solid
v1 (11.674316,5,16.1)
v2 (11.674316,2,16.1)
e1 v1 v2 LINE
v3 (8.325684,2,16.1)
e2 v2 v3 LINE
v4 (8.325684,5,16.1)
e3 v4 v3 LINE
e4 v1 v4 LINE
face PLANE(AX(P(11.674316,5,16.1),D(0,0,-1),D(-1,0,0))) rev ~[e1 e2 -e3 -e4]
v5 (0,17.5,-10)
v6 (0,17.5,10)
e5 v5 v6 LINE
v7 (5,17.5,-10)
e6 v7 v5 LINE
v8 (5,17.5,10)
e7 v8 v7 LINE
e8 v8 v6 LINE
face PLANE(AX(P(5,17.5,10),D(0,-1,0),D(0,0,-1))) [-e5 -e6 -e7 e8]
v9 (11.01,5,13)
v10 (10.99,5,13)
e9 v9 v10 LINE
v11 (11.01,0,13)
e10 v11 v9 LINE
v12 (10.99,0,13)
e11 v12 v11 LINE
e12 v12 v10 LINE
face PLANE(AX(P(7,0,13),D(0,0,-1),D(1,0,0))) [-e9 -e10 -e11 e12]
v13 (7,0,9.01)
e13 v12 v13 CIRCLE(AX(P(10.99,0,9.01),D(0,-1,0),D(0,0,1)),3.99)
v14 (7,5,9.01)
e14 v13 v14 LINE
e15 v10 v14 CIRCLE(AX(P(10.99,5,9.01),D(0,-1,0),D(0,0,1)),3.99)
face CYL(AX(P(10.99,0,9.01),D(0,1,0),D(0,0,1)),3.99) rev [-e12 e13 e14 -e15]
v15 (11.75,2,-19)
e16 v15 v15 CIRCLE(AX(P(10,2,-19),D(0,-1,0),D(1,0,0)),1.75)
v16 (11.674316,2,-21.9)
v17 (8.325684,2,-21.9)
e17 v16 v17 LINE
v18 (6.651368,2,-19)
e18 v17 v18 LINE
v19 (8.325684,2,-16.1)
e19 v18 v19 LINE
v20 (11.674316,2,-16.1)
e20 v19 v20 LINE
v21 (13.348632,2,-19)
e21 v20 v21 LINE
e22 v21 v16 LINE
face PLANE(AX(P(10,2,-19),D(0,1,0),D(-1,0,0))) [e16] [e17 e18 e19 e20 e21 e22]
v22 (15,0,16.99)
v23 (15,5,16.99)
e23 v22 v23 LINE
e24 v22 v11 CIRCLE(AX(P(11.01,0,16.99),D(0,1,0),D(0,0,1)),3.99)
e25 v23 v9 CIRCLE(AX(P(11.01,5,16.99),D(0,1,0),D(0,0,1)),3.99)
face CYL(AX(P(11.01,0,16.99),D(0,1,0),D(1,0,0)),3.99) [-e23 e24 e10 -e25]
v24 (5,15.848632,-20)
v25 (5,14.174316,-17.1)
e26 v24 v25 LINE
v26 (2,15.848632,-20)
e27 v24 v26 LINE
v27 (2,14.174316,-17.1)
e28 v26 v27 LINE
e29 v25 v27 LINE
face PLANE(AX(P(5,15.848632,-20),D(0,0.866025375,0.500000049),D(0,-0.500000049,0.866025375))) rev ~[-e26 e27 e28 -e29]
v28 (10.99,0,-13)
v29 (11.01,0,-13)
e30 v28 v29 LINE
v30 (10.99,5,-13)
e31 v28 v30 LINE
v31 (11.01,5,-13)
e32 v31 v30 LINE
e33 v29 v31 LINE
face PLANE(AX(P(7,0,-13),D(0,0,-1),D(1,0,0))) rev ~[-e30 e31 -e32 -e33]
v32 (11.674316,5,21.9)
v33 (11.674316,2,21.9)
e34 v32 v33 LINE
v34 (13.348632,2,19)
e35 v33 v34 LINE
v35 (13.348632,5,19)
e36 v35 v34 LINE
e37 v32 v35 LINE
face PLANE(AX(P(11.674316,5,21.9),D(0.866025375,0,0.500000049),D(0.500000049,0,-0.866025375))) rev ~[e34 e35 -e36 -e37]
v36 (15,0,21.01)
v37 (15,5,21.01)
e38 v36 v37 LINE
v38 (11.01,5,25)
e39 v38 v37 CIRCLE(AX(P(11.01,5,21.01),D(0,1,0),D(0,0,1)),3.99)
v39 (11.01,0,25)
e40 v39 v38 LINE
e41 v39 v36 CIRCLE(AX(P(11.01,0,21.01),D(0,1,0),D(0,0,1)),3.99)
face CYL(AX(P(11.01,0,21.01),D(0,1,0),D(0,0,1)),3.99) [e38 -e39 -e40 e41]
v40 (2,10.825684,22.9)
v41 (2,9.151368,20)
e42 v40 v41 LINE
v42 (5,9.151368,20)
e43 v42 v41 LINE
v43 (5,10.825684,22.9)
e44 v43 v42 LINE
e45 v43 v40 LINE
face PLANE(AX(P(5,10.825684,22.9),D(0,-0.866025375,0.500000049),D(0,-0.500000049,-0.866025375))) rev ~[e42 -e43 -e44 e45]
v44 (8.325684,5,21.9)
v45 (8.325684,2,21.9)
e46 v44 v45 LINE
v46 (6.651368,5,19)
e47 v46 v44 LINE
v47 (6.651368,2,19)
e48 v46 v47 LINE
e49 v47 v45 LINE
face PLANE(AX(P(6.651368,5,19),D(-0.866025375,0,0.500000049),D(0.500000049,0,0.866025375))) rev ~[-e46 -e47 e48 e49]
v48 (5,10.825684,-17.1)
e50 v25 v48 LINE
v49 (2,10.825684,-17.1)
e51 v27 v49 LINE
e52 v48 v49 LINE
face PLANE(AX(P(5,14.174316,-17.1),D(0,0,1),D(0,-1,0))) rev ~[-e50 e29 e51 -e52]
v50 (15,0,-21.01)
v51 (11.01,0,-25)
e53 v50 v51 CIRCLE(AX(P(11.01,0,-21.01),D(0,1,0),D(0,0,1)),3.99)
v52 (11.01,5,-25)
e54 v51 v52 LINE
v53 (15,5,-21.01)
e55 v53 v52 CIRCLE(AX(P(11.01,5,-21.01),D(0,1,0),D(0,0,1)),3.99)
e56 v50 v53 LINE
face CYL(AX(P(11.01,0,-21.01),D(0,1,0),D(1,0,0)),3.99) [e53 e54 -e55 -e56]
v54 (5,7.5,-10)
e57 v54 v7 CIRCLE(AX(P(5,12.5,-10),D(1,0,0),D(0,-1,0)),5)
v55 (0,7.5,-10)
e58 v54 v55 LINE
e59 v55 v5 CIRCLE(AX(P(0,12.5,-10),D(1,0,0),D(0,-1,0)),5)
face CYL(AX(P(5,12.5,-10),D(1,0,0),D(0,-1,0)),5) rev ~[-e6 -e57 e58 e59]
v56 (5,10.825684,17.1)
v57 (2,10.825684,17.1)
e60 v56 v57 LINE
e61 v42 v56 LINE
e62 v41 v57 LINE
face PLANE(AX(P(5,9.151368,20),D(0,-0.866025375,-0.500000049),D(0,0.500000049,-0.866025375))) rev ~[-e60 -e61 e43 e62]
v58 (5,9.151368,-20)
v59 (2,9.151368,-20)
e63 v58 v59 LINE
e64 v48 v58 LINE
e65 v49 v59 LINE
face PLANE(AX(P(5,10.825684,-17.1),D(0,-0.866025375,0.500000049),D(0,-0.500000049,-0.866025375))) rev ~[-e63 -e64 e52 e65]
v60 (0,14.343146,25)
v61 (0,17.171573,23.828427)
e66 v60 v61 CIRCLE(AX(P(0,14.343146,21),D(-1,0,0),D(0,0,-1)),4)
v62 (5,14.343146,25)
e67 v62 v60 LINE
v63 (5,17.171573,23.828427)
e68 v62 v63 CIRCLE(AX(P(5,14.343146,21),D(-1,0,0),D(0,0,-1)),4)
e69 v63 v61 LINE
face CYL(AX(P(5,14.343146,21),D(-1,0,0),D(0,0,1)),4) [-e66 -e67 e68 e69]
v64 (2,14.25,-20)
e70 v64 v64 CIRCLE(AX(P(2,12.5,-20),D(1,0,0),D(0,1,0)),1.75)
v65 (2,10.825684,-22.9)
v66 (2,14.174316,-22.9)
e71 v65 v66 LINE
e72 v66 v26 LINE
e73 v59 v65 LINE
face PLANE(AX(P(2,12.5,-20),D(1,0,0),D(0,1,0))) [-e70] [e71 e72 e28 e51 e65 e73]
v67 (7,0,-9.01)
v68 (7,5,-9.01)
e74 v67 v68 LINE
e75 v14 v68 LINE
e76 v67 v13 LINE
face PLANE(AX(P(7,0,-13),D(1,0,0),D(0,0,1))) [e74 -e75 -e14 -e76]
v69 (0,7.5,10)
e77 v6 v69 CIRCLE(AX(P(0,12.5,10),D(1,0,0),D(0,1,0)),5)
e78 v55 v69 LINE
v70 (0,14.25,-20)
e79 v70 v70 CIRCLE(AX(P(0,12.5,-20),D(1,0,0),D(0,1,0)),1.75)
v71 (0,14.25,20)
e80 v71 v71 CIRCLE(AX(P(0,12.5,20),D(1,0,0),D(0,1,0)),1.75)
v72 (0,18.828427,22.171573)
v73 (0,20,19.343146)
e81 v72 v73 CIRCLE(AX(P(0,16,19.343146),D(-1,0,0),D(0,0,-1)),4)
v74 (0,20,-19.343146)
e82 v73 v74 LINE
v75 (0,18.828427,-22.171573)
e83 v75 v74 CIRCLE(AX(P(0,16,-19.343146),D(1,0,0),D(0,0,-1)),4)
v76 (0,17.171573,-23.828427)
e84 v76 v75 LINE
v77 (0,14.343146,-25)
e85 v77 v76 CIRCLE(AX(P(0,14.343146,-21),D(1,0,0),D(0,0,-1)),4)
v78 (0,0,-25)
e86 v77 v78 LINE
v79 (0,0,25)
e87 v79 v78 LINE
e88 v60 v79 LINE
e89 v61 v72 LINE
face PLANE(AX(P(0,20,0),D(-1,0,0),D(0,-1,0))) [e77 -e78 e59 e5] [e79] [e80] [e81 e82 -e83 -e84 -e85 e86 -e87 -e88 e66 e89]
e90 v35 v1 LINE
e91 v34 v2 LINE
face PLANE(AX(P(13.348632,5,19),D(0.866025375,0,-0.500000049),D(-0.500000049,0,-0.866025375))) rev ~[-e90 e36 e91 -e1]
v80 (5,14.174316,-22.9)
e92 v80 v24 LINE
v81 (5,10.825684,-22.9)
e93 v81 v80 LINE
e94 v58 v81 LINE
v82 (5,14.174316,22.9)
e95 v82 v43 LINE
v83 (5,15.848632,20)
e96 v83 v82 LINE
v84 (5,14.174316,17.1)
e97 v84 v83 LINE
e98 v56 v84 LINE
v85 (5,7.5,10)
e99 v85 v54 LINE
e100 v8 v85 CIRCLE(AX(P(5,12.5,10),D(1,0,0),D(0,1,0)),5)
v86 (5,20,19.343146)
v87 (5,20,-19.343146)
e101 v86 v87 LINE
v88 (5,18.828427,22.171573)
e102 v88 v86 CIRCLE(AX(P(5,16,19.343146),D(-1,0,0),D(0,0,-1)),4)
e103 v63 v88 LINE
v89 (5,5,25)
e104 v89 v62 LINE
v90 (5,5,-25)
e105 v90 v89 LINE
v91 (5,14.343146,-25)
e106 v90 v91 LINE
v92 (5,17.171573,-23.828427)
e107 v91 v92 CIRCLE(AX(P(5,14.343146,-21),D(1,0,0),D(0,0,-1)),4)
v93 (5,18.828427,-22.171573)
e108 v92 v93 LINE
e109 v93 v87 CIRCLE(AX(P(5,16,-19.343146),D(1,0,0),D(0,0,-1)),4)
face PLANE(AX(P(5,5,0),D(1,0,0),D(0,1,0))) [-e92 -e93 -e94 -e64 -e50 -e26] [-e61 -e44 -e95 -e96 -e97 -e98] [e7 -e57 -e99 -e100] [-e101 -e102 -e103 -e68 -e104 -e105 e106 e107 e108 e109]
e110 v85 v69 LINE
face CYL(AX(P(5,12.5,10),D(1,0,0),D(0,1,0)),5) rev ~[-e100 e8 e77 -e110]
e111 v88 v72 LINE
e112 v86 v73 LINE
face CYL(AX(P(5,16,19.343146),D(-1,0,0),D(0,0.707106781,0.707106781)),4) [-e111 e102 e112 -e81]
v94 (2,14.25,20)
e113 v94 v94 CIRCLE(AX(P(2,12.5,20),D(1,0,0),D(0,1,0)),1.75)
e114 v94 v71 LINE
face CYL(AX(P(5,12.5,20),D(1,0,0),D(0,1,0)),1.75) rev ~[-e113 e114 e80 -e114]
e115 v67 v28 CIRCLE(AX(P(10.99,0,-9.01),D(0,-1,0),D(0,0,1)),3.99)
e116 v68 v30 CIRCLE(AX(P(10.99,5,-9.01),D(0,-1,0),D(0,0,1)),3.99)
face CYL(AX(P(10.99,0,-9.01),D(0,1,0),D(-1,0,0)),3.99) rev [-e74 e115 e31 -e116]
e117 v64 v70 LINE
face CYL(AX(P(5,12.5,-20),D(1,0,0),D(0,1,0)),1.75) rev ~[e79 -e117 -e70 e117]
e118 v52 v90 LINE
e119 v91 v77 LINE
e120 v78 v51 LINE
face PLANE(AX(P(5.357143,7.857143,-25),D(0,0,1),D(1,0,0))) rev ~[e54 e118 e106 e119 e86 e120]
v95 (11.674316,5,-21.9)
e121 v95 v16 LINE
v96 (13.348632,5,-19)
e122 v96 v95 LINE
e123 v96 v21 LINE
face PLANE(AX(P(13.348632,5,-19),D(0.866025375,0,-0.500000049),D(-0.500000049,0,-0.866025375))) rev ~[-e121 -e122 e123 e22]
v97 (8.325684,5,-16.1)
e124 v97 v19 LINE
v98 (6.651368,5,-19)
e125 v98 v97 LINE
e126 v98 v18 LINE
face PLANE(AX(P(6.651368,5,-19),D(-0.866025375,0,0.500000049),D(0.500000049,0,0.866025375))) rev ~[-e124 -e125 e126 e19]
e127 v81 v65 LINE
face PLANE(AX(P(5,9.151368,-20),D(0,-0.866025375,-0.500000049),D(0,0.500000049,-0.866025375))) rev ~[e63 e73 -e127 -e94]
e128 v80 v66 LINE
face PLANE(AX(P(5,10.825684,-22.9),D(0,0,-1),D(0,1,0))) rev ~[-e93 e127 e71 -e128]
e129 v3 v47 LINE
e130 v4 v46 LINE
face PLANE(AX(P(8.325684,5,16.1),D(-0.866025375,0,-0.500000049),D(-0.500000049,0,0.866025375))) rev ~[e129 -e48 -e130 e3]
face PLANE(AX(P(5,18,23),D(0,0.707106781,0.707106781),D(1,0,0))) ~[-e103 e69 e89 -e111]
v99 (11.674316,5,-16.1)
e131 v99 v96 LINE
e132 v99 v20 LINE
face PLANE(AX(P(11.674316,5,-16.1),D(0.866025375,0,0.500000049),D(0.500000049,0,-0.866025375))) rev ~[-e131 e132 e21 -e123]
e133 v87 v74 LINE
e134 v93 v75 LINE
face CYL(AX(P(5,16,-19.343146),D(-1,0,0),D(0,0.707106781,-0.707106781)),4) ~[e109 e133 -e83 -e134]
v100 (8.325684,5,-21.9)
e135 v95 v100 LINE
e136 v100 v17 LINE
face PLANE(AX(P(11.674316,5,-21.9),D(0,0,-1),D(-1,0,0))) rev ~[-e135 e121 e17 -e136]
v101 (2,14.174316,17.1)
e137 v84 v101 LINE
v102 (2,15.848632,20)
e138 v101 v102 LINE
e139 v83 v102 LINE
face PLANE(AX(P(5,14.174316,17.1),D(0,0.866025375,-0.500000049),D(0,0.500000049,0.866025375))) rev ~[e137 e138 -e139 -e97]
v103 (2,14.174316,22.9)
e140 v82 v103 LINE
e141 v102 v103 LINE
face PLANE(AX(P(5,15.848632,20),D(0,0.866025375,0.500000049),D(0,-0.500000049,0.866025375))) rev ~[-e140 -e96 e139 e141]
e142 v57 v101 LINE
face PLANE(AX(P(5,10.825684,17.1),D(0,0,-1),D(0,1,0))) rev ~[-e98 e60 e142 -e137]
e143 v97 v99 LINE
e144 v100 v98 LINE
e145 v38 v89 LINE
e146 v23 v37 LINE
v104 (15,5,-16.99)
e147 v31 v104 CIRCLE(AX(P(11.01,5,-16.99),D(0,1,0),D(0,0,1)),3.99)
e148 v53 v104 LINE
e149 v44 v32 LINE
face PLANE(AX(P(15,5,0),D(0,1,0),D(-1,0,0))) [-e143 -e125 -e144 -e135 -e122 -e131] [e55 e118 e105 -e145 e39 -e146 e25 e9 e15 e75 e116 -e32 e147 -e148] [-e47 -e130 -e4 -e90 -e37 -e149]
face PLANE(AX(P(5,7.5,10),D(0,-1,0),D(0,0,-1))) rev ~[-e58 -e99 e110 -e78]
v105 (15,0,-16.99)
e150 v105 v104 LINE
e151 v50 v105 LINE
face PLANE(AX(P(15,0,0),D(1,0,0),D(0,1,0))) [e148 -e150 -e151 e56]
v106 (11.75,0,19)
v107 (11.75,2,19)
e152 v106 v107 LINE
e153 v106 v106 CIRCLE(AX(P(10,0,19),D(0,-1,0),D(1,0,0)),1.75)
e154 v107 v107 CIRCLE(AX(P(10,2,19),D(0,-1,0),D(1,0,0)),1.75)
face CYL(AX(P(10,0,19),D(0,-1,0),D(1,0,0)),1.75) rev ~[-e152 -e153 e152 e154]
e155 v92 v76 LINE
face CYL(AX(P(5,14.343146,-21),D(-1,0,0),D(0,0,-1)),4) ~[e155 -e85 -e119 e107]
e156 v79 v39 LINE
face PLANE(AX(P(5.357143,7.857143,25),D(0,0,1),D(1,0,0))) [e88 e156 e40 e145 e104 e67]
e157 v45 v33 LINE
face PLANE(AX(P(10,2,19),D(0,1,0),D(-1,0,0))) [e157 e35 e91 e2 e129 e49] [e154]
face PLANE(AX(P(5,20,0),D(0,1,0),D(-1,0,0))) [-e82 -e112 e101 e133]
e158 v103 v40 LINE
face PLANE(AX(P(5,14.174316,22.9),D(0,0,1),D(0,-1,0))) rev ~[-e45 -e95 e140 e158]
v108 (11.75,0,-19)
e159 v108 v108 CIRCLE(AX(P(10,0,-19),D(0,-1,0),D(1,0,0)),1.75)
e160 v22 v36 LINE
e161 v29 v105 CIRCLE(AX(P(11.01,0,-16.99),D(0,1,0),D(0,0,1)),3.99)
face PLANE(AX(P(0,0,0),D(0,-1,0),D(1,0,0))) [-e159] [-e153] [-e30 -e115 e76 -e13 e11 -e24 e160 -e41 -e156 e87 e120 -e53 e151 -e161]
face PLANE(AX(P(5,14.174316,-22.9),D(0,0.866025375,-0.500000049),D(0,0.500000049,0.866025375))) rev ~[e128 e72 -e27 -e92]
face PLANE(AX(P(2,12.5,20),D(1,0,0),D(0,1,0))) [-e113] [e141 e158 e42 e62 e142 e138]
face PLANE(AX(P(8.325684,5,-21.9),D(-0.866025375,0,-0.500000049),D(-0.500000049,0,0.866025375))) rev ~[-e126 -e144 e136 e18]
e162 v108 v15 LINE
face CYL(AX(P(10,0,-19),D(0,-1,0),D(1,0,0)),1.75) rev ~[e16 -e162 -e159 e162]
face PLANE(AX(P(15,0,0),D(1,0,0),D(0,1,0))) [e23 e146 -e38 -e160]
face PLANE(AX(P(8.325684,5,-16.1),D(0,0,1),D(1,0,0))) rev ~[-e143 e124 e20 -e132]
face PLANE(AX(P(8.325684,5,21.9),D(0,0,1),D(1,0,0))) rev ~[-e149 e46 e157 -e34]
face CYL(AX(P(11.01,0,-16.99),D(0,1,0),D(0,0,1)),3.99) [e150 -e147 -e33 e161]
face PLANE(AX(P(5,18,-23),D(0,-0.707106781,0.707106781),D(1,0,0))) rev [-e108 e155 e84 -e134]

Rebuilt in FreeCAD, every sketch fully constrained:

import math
import FreeCAD as App
import Part
import Sketcher
from FreeCAD import Vector
Q = App.Units.Quantity


def edges_at(feature, points):
    """Names of the edges that pass closest to the given points."""
    edges = feature.Shape.Edges
    near = lambda p: min(range(len(edges)), key=lambda i: edges[i].distToShape(Part.Vertex(*p))[0])
    return sorted({f"Edge{near(p) + 1}" for p in points})


def add_polygon(sketch, points):
    """Adds a closed chain of lines whose ends are joined by coincident constraints."""
    first, n = sketch.GeometryCount, len(points)
    for a, b in zip(points, points[1:] + points[:1]):
        sketch.addGeometry(Part.LineSegment(App.Vector(*a, 0), App.Vector(*b, 0)), False)
    for i in range(n):
        sketch.addConstraint(Sketcher.Constraint("Coincident", first + i, 2, first + (i + 1) % n, 1))

doc = App.newDocument("Part")
body = doc.addObject("PartDesign::Body", "Body")

# Sketch on XY plane
sketch1 = doc.addObject("Sketcher::SketchObject", "Sketch")
body.addObject(sketch1)
sketch1.AttachmentSupport = (doc.XY_Plane, [""])
sketch1.MapMode = "FlatFace"
add_polygon(sketch1, [(0, 0), (15, 0), (15, 5), (5, 5), (5, 20), (0, 20)])  # lines 0-5
sketch1.addConstraint(Sketcher.Constraint("Horizontal", 0))
sketch1.addConstraint(Sketcher.Constraint("Vertical", 1))
sketch1.addConstraint(Sketcher.Constraint("Horizontal", 2))
sketch1.addConstraint(Sketcher.Constraint("Vertical", 3))
sketch1.addConstraint(Sketcher.Constraint("Horizontal", 4))
sketch1.addConstraint(Sketcher.Constraint("Vertical", 5))
sketch1.addConstraint(Sketcher.Constraint("Coincident", 5, 2, -1, 1))
sketch1.addConstraint(Sketcher.Constraint("Equal", 4, 1))
sketch1.addConstraint(Sketcher.Constraint("Equal", 0, 3))
sketch1.addConstraint(Sketcher.Constraint("DistanceX", 0, 1, 0, 2, Q("15 mm")))
sketch1.addConstraint(Sketcher.Constraint("DistanceX", 2, 2, 2, 1, Q("10 mm")))
pad1 = doc.addObject("PartDesign::Pad", "Pad")
body.addObject(pad1)
pad1.Profile = sketch1
pad1.Length = 50
pad1.Midplane = True

# Sketch on YZ plane
sketch2 = doc.addObject("Sketcher::SketchObject", "Sketch001")
body.addObject(sketch2)
sketch2.AttachmentSupport = (doc.YZ_Plane, [""])
sketch2.MapMode = "FlatFace"
sketch2.AttachmentOffset = App.Placement(Vector(0, 0, 5), App.Rotation())
sketch2.addGeometry(Part.Circle(Vector(12.5, 20, 0), Vector(0, 0, 1), 1.8), False)
sketch2.addGeometry(Part.Circle(Vector(12.5, -20, 0), Vector(0, 0, 1), 1.8), False)
sketch2.addConstraint(Sketcher.Constraint("Equal", 0, 1))
sketch2.addConstraint(Sketcher.Constraint("Symmetric", 0, 3, 1, 3, -1))
sketch2.addConstraint(Sketcher.Constraint("Diameter", 0, Q("3.5 mm")))
sketch2.addConstraint(Sketcher.Constraint("DistanceY", -1, 1, 0, 3, Q("20 mm")))
sketch2.addConstraint(Sketcher.Constraint("DistanceX", -1, 1, 0, 3, Q("12.5 mm")))
pocket1 = doc.addObject("PartDesign::Pocket", "Pocket")
body.addObject(pocket1)
pocket1.Profile = sketch2
pocket1.Type = "ThroughAll"

# Sketch on YZ plane
sketch3 = doc.addObject("Sketcher::SketchObject", "Sketch002")
body.addObject(sketch3)
sketch3.AttachmentSupport = (doc.YZ_Plane, [""])
sketch3.MapMode = "FlatFace"
sketch3.AttachmentOffset = App.Placement(Vector(0, 0, 5), App.Rotation())
add_polygon(sketch3, [(14.2, 17.1), (15.8, 20), (14.2, 22.9), (10.8, 22.9), (9.2, 20), (10.8, 17.1)])  # lines 0-5
add_polygon(sketch3, [(14.2, -22.9), (15.8, -20), (14.2, -17.1), (10.8, -17.1), (9.2, -20), (10.8, -22.9)])  # lines 6-11
sketch3.addConstraint(Sketcher.Constraint("Horizontal", 2))
sketch3.addConstraint(Sketcher.Constraint("Horizontal", 5))
sketch3.addConstraint(Sketcher.Constraint("Horizontal", 8))
sketch3.addConstraint(Sketcher.Constraint("Horizontal", 11))
sketch3.addConstraint(Sketcher.Constraint("Symmetric", 0, 2, 6, 2, -1))
sketch3.addConstraint(Sketcher.Constraint("Symmetric", 5, 2, 7, 2, -1))
sketch3.addConstraint(Sketcher.Constraint("Symmetric", 3, 2, 9, 2, -1))
sketch3.addConstraint(Sketcher.Constraint("Symmetric", 2, 2, 10, 2, -1))
sketch3.addConstraint(Sketcher.Constraint("Parallel", 0, 3))
sketch3.addConstraint(Sketcher.Constraint("Parallel", 1, 4))
sketch3.addConstraint(Sketcher.Constraint("Parallel", 3, 6))
sketch3.addConstraint(Sketcher.Constraint("Parallel", 4, 7))
sketch3.addConstraint(Sketcher.Constraint("Parallel", 6, 9))
sketch3.addConstraint(Sketcher.Constraint("Horizontal", 0, 2, 3, 2))
sketch3.addConstraint(Sketcher.Constraint("Vertical", 2, 2, 4, 2))
sketch3.addConstraint(Sketcher.Constraint("Angle", 0, Q("59.999997 deg")))
sketch3.addConstraint(Sketcher.Constraint("DistanceY", -1, 1, 0, 2, Q("20 mm")))
sketch3.addConstraint(Sketcher.Constraint("DistanceY", -1, 1, 1, 2, Q("22.9 mm")))
sketch3.addConstraint(Sketcher.Constraint("DistanceX", 2, 2, 2, 1, Q("3.348632 mm")))
sketch3.addConstraint(Sketcher.Constraint("DistanceX", -1, 1, 0, 2, Q("15.848632 mm")))
pocket2 = doc.addObject("PartDesign::Pocket", "Pocket001")
body.addObject(pocket2)
pocket2.Profile = sketch3
pocket2.Length = 3

# Sketch on XZ plane
sketch4 = doc.addObject("Sketcher::SketchObject", "Sketch003")
body.addObject(sketch4)
sketch4.AttachmentSupport = (doc.XZ_Plane, [""])
sketch4.MapMode = "FlatFace"
sketch4.addGeometry(Part.Circle(Vector(10, 19, 0), Vector(0, 0, 1), 1.8), False)  # 0
sketch4.addGeometry(Part.Circle(Vector(10, -19, 0), Vector(0, 0, 1), 1.8), False)  # 1
add_polygon(sketch4, [(7, 13), (7, -13), (19, -13), (19, 13)])  # lines 2-5
sketch4.addConstraint(Sketcher.Constraint("Vertical", 2))
sketch4.addConstraint(Sketcher.Constraint("Horizontal", 3))
sketch4.addConstraint(Sketcher.Constraint("Vertical", 4))
sketch4.addConstraint(Sketcher.Constraint("Horizontal", 5))
sketch4.addConstraint(Sketcher.Constraint("Equal", 0, 1))
sketch4.addConstraint(Sketcher.Constraint("Symmetric", 0, 3, 1, 3, -1))
sketch4.addConstraint(Sketcher.Constraint("Diameter", 0, Q("3.5 mm")))
sketch4.addConstraint(Sketcher.Constraint("DistanceX", 3, 1, 3, 2, Q("12 mm")))
sketch4.addConstraint(Sketcher.Constraint("DistanceY", 2, 2, 2, 1, Q("26 mm")))
sketch4.addConstraint(Sketcher.Constraint("DistanceX", -1, 1, 0, 3, Q("10 mm")))
sketch4.addConstraint(Sketcher.Constraint("DistanceY", -1, 1, 0, 3, Q("19 mm")))
sketch4.addConstraint(Sketcher.Constraint("DistanceX", -1, 1, 2, 2, Q("7 mm")))
sketch4.addConstraint(Sketcher.Constraint("DistanceY", 2, 2, -1, 1, Q("13 mm")))
pocket3 = doc.addObject("PartDesign::Pocket", "Pocket002")
body.addObject(pocket3)
pocket3.Profile = sketch4
pocket3.Type = "ThroughAll"

# Sketch on XZ plane
sketch5 = doc.addObject("Sketcher::SketchObject", "Sketch004")
body.addObject(sketch5)
sketch5.AttachmentSupport = (doc.XZ_Plane, [""])
sketch5.MapMode = "FlatFace"
sketch5.AttachmentOffset = App.Placement(Vector(0, 0, -5), App.Rotation())
add_polygon(sketch5, [(6.7, 19), (8.3, 21.9), (11.7, 21.9), (13.3, 19), (11.7, 16.1), (8.3, 16.1)])  # lines 0-5
add_polygon(sketch5, [(6.7, -19), (8.3, -16.1), (11.7, -16.1), (13.3, -19), (11.7, -21.9), (8.3, -21.9)])  # lines 6-11
sketch5.addConstraint(Sketcher.Constraint("Horizontal", 1))
sketch5.addConstraint(Sketcher.Constraint("Horizontal", 4))
sketch5.addConstraint(Sketcher.Constraint("Horizontal", 7))
sketch5.addConstraint(Sketcher.Constraint("Horizontal", 10))
sketch5.addConstraint(Sketcher.Constraint("Symmetric", 4, 2, 6, 2, -1))
sketch5.addConstraint(Sketcher.Constraint("Symmetric", 2, 2, 8, 2, -1))
sketch5.addConstraint(Sketcher.Constraint("Symmetric", 1, 2, 9, 2, -1))
sketch5.addConstraint(Sketcher.Constraint("Symmetric", 5, 2, 11, 2, -1))
sketch5.addConstraint(Sketcher.Constraint("Parallel", 0, 3))
sketch5.addConstraint(Sketcher.Constraint("Parallel", 2, 5))
sketch5.addConstraint(Sketcher.Constraint("Parallel", 3, 6))
sketch5.addConstraint(Sketcher.Constraint("Parallel", 5, 8))
sketch5.addConstraint(Sketcher.Constraint("Parallel", 8, 11))
sketch5.addConstraint(Sketcher.Constraint("Horizontal", 2, 2, 5, 2))
sketch5.addConstraint(Sketcher.Constraint("Vertical", 1, 2, 3, 2))
sketch5.addConstraint(Sketcher.Constraint("Angle", 0, Q("59.999997 deg")))
sketch5.addConstraint(Sketcher.Constraint("DistanceY", -1, 1, 2, 2, Q("19 mm")))
sketch5.addConstraint(Sketcher.Constraint("DistanceY", -1, 1, 0, 2, Q("21.9 mm")))
sketch5.addConstraint(Sketcher.Constraint("DistanceX", 1, 1, 1, 2, Q("3.348632 mm")))
sketch5.addConstraint(Sketcher.Constraint("DistanceX", -1, 1, 0, 2, Q("8.325684 mm")))
pocket4 = doc.addObject("PartDesign::Pocket", "Pocket003")
body.addObject(pocket4)
pocket4.Profile = sketch5
pocket4.Length = 3
pocket4.Reversed = True
doc.recompute()

fillet = doc.addObject("PartDesign::Fillet", "Fillet")
body.addObject(fillet)
fillet.Base = (pocket4, edges_at(pocket4, [
    (15, 2.5, -25),
    (15, 2.5, -13),
    (7, 2.5, -13),
    (7, 2.5, 13),
    (15, 2.5, 13),
    (15, 2.5, 25),
]))
fillet.Radius = 3.99

# Sketch on YZ plane
sketch6 = doc.addObject("Sketcher::SketchObject", "Sketch005")
body.addObject(sketch6)
sketch6.AttachmentSupport = (doc.YZ_Plane, [""])
sketch6.MapMode = "FlatFace"
sketch6.AttachmentOffset = App.Placement(Vector(0, 0, 5), App.Rotation())
sketch6.addGeometry(Part.ArcOfCircle(Part.Circle(Vector(12, 10, 0), Vector(0, 0, 1), 5), math.radians(0), math.radians(180)), False)
sketch6.addGeometry(Part.LineSegment(Vector(8, 10, 0), Vector(8, -10, 0)), False)
sketch6.addGeometry(Part.ArcOfCircle(Part.Circle(Vector(12, -10, 0), Vector(0, 0, 1), 5), math.radians(180), math.radians(360)), False)
sketch6.addGeometry(Part.LineSegment(Vector(18, -10, 0), Vector(18, 10, 0)), False)
sketch6.addConstraint(Sketcher.Constraint("Tangent", 0, 2, 1, 1))
sketch6.addConstraint(Sketcher.Constraint("Tangent", 1, 2, 2, 1))
sketch6.addConstraint(Sketcher.Constraint("Tangent", 2, 2, 3, 1))
sketch6.addConstraint(Sketcher.Constraint("Tangent", 3, 2, 0, 1))
sketch6.addConstraint(Sketcher.Constraint("Vertical", 1))
sketch6.addConstraint(Sketcher.Constraint("Vertical", 3))
sketch6.addConstraint(Sketcher.Constraint("Radius", 0, Q("5 mm")))
sketch6.addConstraint(Sketcher.Constraint("DistanceY", 1, 2, 1, 1, Q("20 mm")))
sketch6.addConstraint(Sketcher.Constraint("DistanceY", -1, 1, 0, 3, Q("10 mm")))
sketch6.addConstraint(Sketcher.Constraint("DistanceX", -1, 1, 0, 3, Q("12.5 mm")))
pocket5 = doc.addObject("PartDesign::Pocket", "Pocket004")
body.addObject(pocket5)
pocket5.Profile = sketch6
pocket5.Type = "ThroughAll"
doc.recompute()

chamfer = doc.addObject("PartDesign::Chamfer", "Chamfer")
body.addObject(chamfer)
chamfer.Base = (pocket5, edges_at(pocket5, [(2.5, 20, -25), (2.5, 20, 25)]))
chamfer.Size = 4
doc.recompute()

fillet2 = doc.addObject("PartDesign::Fillet", "Fillet001")
body.addObject(fillet2)
fillet2.Base = (chamfer, edges_at(chamfer, [
    (2.5, 20, -21),
    (2.5, 20, 21),
    (2.5, 16, -25),
    (2.5, 16, 25),
]))
fillet2.Radius = 4

doc.recompute()
